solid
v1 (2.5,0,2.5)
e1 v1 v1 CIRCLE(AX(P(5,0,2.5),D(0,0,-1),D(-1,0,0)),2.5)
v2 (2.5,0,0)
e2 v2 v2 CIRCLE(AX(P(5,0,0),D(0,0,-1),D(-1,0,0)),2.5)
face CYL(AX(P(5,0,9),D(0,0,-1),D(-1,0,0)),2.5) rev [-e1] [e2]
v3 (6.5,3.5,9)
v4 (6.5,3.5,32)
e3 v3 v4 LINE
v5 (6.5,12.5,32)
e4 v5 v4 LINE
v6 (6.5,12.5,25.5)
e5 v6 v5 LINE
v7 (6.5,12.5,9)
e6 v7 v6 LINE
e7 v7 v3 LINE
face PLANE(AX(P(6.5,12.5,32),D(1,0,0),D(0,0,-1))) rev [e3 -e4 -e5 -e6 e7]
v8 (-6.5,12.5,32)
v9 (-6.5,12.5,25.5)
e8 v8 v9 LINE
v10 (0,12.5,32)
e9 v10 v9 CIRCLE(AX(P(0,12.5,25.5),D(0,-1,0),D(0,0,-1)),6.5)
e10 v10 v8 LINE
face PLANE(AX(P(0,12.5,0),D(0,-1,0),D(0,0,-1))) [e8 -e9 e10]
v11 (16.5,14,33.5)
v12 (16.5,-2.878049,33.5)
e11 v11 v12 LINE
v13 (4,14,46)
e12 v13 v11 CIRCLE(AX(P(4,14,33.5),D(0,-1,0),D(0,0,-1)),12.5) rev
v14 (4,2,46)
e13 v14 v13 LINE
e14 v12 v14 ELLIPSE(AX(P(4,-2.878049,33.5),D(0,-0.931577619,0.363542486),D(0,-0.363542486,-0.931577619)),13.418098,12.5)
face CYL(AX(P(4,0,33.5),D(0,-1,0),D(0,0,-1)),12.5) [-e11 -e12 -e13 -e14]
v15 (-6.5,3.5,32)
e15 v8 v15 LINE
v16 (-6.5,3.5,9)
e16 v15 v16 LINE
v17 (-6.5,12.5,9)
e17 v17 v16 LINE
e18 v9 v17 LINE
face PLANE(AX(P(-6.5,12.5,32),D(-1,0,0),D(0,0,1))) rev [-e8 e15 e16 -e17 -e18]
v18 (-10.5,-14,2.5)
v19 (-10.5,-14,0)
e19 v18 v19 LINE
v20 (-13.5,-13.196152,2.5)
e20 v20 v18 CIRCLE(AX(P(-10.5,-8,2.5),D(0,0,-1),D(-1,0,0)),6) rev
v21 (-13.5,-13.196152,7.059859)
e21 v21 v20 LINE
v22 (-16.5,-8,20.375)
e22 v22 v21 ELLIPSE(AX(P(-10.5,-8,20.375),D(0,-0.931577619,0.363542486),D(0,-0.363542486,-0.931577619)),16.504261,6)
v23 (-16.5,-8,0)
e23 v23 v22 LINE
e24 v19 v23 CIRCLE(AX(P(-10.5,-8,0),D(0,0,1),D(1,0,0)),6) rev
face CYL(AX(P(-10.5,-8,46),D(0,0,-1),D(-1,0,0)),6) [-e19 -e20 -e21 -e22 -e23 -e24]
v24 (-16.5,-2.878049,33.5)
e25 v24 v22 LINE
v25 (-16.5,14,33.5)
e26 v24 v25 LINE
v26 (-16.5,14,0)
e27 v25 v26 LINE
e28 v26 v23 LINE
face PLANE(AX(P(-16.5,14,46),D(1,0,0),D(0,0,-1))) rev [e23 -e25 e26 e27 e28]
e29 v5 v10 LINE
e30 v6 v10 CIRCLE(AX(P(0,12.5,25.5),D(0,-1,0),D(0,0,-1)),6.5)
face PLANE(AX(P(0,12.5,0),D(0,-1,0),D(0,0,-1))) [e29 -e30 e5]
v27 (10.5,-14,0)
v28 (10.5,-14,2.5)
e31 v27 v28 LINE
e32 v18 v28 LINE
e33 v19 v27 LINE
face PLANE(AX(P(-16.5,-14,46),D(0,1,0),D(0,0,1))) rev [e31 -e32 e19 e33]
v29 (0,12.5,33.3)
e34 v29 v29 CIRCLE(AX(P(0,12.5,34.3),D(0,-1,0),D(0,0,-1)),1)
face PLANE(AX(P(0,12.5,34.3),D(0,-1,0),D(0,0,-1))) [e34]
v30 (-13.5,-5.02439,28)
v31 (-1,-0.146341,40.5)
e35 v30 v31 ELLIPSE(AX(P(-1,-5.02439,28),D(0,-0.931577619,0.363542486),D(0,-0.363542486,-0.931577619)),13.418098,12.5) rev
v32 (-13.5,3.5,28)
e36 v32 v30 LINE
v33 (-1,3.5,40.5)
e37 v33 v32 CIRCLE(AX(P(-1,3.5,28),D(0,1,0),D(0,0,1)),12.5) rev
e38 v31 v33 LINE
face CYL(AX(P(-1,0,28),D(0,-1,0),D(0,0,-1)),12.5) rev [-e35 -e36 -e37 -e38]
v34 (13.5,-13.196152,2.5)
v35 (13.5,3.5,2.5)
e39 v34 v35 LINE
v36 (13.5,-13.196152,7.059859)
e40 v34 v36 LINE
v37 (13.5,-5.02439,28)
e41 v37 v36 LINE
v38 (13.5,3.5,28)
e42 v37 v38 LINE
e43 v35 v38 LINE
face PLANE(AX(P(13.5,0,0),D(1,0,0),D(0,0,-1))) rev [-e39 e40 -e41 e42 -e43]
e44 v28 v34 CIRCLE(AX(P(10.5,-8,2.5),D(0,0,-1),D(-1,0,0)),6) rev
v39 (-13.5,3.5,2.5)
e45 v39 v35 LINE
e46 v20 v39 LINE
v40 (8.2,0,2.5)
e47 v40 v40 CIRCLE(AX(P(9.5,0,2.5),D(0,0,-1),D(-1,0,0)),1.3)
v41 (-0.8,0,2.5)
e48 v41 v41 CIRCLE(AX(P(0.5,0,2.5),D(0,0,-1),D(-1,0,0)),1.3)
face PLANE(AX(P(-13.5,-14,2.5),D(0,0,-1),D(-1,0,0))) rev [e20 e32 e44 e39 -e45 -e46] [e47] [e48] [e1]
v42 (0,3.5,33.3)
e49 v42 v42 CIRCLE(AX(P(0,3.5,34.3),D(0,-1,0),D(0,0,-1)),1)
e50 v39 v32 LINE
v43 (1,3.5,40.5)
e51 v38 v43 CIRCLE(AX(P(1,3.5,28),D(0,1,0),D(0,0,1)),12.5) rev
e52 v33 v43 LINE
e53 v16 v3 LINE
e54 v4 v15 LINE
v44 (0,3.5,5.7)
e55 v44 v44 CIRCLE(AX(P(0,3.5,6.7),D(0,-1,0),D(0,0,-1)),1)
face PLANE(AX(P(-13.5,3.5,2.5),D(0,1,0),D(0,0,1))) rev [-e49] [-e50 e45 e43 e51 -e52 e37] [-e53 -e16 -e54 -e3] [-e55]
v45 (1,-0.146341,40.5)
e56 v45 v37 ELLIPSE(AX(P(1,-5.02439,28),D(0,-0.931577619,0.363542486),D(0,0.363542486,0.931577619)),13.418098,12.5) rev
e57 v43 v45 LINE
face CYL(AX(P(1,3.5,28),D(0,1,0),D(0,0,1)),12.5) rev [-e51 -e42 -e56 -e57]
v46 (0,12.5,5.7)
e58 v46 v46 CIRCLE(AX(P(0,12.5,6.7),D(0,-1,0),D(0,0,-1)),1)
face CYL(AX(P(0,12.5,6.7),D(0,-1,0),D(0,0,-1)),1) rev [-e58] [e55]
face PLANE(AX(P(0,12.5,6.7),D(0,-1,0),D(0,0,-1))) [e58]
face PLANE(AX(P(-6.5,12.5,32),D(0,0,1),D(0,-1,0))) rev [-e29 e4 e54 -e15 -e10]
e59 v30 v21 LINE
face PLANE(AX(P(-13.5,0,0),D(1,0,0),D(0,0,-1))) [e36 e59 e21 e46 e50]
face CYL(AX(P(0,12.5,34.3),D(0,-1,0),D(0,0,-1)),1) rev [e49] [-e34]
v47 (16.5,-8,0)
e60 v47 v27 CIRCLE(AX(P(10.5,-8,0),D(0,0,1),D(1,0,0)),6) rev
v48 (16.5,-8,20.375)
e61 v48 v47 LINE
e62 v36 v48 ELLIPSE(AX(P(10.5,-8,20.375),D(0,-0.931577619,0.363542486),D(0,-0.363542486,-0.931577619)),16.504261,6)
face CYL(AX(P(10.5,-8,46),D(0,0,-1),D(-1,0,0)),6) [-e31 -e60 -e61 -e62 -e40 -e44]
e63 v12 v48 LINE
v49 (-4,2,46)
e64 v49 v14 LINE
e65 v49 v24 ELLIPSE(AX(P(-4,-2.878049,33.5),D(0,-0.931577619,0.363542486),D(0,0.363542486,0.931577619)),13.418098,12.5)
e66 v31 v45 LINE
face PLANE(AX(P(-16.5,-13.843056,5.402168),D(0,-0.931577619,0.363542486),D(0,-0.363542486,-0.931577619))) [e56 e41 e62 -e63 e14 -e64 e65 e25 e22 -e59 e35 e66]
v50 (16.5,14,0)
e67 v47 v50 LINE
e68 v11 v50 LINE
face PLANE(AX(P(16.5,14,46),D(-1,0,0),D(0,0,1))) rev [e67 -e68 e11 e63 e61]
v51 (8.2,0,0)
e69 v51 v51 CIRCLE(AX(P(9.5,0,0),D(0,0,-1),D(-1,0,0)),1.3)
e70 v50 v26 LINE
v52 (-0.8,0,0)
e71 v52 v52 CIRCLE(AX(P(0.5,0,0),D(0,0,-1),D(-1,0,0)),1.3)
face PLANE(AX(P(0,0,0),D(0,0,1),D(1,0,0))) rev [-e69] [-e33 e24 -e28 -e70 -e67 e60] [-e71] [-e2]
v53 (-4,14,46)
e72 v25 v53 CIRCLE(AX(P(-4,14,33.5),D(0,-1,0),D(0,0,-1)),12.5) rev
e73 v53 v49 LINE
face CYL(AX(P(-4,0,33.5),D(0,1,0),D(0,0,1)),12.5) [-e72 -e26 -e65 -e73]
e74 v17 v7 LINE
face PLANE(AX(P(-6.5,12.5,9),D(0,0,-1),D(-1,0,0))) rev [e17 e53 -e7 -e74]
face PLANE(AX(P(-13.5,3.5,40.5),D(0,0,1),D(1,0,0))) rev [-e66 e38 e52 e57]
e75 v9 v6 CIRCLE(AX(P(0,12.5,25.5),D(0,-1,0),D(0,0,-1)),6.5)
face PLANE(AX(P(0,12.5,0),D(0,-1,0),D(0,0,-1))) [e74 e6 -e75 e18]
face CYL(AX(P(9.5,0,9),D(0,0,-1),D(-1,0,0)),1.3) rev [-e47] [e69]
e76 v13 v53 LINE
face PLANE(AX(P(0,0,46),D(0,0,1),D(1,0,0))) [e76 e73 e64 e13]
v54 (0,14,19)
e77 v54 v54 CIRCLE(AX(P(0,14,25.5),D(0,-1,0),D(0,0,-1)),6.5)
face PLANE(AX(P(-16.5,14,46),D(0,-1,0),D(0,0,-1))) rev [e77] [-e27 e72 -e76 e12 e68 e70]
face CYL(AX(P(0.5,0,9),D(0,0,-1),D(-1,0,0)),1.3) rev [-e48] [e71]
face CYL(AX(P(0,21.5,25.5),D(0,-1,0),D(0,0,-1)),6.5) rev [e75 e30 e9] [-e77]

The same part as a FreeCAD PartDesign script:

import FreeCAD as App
import Part
import Sketcher
from FreeCAD import Vector


def edges_at(feature, points):
    """Names of the edges that pass closest to the given points."""
    edges = feature.Shape.Edges
    near = lambda p: min(range(len(edges)), key=lambda i: edges[i].distToShape(Part.Vertex(*p))[0])
    return sorted({f"Edge{near(p) + 1}" for p in points})


def add_polygon(sketch, points):
    """Adds a closed chain of lines whose ends are joined by coincident constraints."""
    first, n = sketch.GeometryCount, len(points)
    for a, b in zip(points, points[1:] + points[:1]):
        sketch.addGeometry(Part.LineSegment(App.Vector(*a, 0), App.Vector(*b, 0)), False)
    for i in range(n):
        sketch.addConstraint(Sketcher.Constraint("Coincident", first + i, 2, first + (i + 1) % n, 1))

doc = App.newDocument("Part")
params = doc.addObject("Spreadsheet::Sheet", "Params")
for row, (alias, value) in enumerate([
    ("sketch1_width", "33 mm"),
    ("sketch1_height", "28 mm"),
    ("pad1_length", "46 mm"),
    ("sketch2_width", "16 mm"),
    ("sketch2_height", "41 mm"),
    ("sketch3_height", "38 mm"),
    ("sketch3_width", "17.5 mm"),
    ("sketch3_height2", "2.5 mm"),
    ("pocket2_length", "27 mm"),
    ("fillet_radius", "12.5 mm"),
    ("fillet2_radius", "12.5 mm"),
    ("fillet3_radius", "6 mm"),
    ("sketch4_width", "13 mm"),
    ("sketch4_height", "23 mm"),
    ("pocket3_length", "9 mm"),
    ("sketch5_diameter", "13 mm"),
    ("pocket4_length", "9 mm"),
    ("sketch6_diameter", "2 mm"),
    ("pocket5_length", "9 mm"),
    ("sketch7_diameter", "5 mm"),
    ("sketch7_diameter2", "2.6 mm"),
    ("pocket6_length", "9 mm"),
], start=1):
    params.set(f"A{row}", alias)
    params.set(f"B{row}", "=" + value)
    params.setAlias(f"B{row}", alias)

body = doc.addObject("PartDesign::Body", "Body")

# Sketch on XY plane
sketch1 = body.newObject("Sketcher::SketchObject", "Sketch")
sketch1.AttachmentSupport = (doc.getObject("XY_Plane"), [""])
sketch1.MapMode = "FlatFace"
add_polygon(sketch1, [(-16.5, 14), (-16.5, -14), (16.5, -14), (16.5, 14)])  # lines 0-3
sketch1.addConstraint([
    Sketcher.Constraint("Vertical", 0),
    Sketcher.Constraint("Horizontal", 1),
    Sketcher.Constraint("Vertical", 2),
    Sketcher.Constraint("Horizontal", 3),
    Sketcher.Constraint("Symmetric", 0, 2, 2, 2, -1, 1),
    Sketcher.Constraint("DistanceX", 1, 1, 1, 2, 33.0),
    Sketcher.Constraint("DistanceY", 0, 2, 0, 1, 28.0),
])
sketch1.setExpression("Constraints[9]", "Params.sketch1_width")
sketch1.setExpression("Constraints[10]", "Params.sketch1_height")
pad1 = body.newObject("PartDesign::Pad", "Pad")
pad1.Profile = sketch1
pad1.setExpression("Length", "Params.pad1_length")

# Sketch on YZ plane
sketch2 = body.newObject("Sketcher::SketchObject", "Sketch001")
sketch2.AttachmentSupport = (doc.getObject("YZ_Plane"), [""])
sketch2.MapMode = "FlatFace"
sketch2.AttachmentOffset = App.Placement(Vector(0, 0, 16.5), App.Rotation())
add_polygon(sketch2, [(-14, 5), (2, 46), (-14, 46)])  # lines 0-2
sketch2.addConstraint([
    Sketcher.Constraint("Horizontal", 1),
    Sketcher.Constraint("Vertical", 2),
    Sketcher.Constraint("DistanceX", 1, 2, 1, 1, 16.0),
    Sketcher.Constraint("DistanceY", 2, 2, 2, 1, 41.0),
    Sketcher.Constraint("DistanceX", -1, 1, 0, 2, 2.0),
    Sketcher.Constraint("DistanceY", -1, 1, 0, 2, 46.0),
])
sketch2.setExpression("Constraints[5]", "Params.sketch2_width")
sketch2.setExpression("Constraints[6]", "Params.sketch2_height")
pocket1 = body.newObject("PartDesign::Pocket", "Pocket")
pocket1.Profile = sketch2
pocket1.Type = "ThroughAll"

# Sketch on YZ plane
sketch3 = body.newObject("Sketcher::SketchObject", "Sketch002")
sketch3.AttachmentSupport = (doc.getObject("YZ_Plane"), [""])
sketch3.MapMode = "FlatFace"
sketch3.AttachmentOffset = App.Placement(Vector(0, 0, 13.5), App.Rotation())
add_polygon(sketch3, [(-14, 5), (-14, 2.5), (3.5, 2.5), (3.5, 40.5), (-0.146341, 40.5)])  # lines 0-4
sketch3.addConstraint([
    Sketcher.Constraint("Vertical", 0),
    Sketcher.Constraint("Horizontal", 1),
    Sketcher.Constraint("Vertical", 2),
    Sketcher.Constraint("Horizontal", 3),
    Sketcher.Constraint("DistanceY", 2, 1, 2, 2, 38.0),
    Sketcher.Constraint("DistanceX", 1, 1, 1, 2, 17.5),
    Sketcher.Constraint("DistanceY", 0, 2, 0, 1, 2.5),
    Sketcher.Constraint("DistanceX", 0, 2, -1, 1, 14.0),
    Sketcher.Constraint("DistanceY", -1, 1, 4, 2, 5.0),
    Sketcher.Constraint("Distance", 4, 38.107399),
])
sketch3.setExpression("Constraints[9]", "Params.sketch3_height")
sketch3.setExpression("Constraints[10]", "Params.sketch3_width")
sketch3.setExpression("Constraints[11]", "Params.sketch3_height2")
pocket2 = body.newObject("PartDesign::Pocket", "Pocket001")
pocket2.Profile = sketch3
pocket2.setExpression("Length", "Params.pocket2_length")
doc.recompute()

fillet = body.newObject("PartDesign::Fillet", "Fillet")
fillet.Base = (pocket2, edges_at(pocket2, [(-13.5, 1.677, 40.5), (13.5, 1.677, 40.5)]))
fillet.setExpression("Radius", "Params.fillet_radius")
doc.recompute()

fillet2 = body.newObject("PartDesign::Fillet", "Fillet001")
fillet2.Base = (fillet, edges_at(fillet, [(-16.5, 8, 46), (16.5, 8, 46)]))
fillet2.setExpression("Radius", "Params.fillet2_radius")
doc.recompute()

fillet3 = body.newObject("PartDesign::Fillet", "Fillet002")
fillet3.Base = (fillet2, edges_at(fillet2, [(-16.5, -14, 2.5), (16.5, -14, 2.5)]))
fillet3.setExpression("Radius", "Params.fillet3_radius")

# Sketch on XZ plane
sketch4 = body.newObject("Sketcher::SketchObject", "Sketch003")
sketch4.AttachmentSupport = (doc.getObject("XZ_Plane"), [""])
sketch4.MapMode = "FlatFace"
sketch4.AttachmentOffset = App.Placement(Vector(0, 0, -3.5), App.Rotation())
add_polygon(sketch4, [(-6.5, 32), (-6.5, 9), (6.5, 9), (6.5, 32)])  # lines 0-3
sketch4.addConstraint([
    Sketcher.Constraint("Vertical", 0),
    Sketcher.Constraint("Horizontal", 1),
    Sketcher.Constraint("Vertical", 2),
    Sketcher.Constraint("Horizontal", 3),
    Sketcher.Constraint("DistanceX", 1, 1, 1, 2, 13.0),
    Sketcher.Constraint("DistanceY", 0, 2, 0, 1, 23.0),
    Sketcher.Constraint("DistanceY", -1, 1, 0, 2, 9.0),
    Sketcher.Constraint("DistanceX", 0, 2, -1, 1, 6.5),
])
sketch4.setExpression("Constraints[8]", "Params.sketch4_width")
sketch4.setExpression("Constraints[9]", "Params.sketch4_height")
pocket3 = body.newObject("PartDesign::Pocket", "Pocket002")
pocket3.Profile = sketch4
pocket3.setExpression("Length", "Params.pocket3_length")

# Sketch on XZ plane
sketch5 = body.newObject("Sketcher::SketchObject", "Sketch004")
sketch5.AttachmentSupport = (doc.getObject("XZ_Plane"), [""])
sketch5.MapMode = "FlatFace"
sketch5.AttachmentOffset = App.Placement(Vector(0, 0, -12.5), App.Rotation())
sketch5.addGeometry(Part.Circle(Vector(0, 25.5, 0), Vector(0, 0, 1), 6.5), False)
sketch5.addConstraint([
    Sketcher.Constraint("PointOnObject", 0, 3, -2),
    Sketcher.Constraint("Diameter", 0, 13.0),
    Sketcher.Constraint("DistanceY", -1, 1, 0, 3, 25.5),
])
sketch5.setExpression("Constraints[1]", "Params.sketch5_diameter")
pocket4 = body.newObject("PartDesign::Pocket", "Pocket003")
pocket4.Profile = sketch5
pocket4.setExpression("Length", "Params.pocket4_length")

# Sketch on XZ plane
sketch6 = body.newObject("Sketcher::SketchObject", "Sketch005")
sketch6.AttachmentSupport = (doc.getObject("XZ_Plane"), [""])
sketch6.MapMode = "FlatFace"
sketch6.AttachmentOffset = App.Placement(Vector(0, 0, -3.5), App.Rotation())
sketch6.addGeometry([
    Part.Circle(Vector(0, 34.3, 0), Vector(0, 0, 1), 1),
    Part.Circle(Vector(0, 6.7, 0), Vector(0, 0, 1), 1),
], False)
sketch6.addConstraint([
    Sketcher.Constraint("Equal", 0, 1),
    Sketcher.Constraint("PointOnObject", 0, 3, -2),
    Sketcher.Constraint("PointOnObject", 1, 3, -2),
    Sketcher.Constraint("Diameter", 0, 2.0),
    Sketcher.Constraint("DistanceY", -1, 1, 0, 3, 34.3),
    Sketcher.Constraint("DistanceY", -1, 1, 1, 3, 6.7),
])
sketch6.setExpression("Constraints[3]", "Params.sketch6_diameter")
pocket5 = body.newObject("PartDesign::Pocket", "Pocket004")
pocket5.Profile = sketch6
pocket5.setExpression("Length", "Params.pocket5_length")

# Sketch on XY plane
sketch7 = body.newObject("Sketcher::SketchObject", "Sketch006")
sketch7.AttachmentSupport = (doc.getObject("XY_Plane"), [""])
sketch7.MapMode = "FlatFace"
sketch7.addGeometry([
    Part.Circle(Vector(5, 0, 0), Vector(0, 0, 1), 2.5),
    Part.Circle(Vector(0.5, 0, 0), Vector(0, 0, 1), 1.3),
    Part.Circle(Vector(9.5, 0, 0), Vector(0, 0, 1), 1.3),
], False)
sketch7.addConstraint([
    Sketcher.Constraint("Equal", 1, 2),
    Sketcher.Constraint("PointOnObject", 0, 3, -1),
    Sketcher.Constraint("PointOnObject", 1, 3, -1),
    Sketcher.Constraint("PointOnObject", 2, 3, -1),
    Sketcher.Constraint("Diameter", 0, 5.0),
    Sketcher.Constraint("Diameter", 1, 2.6),
    Sketcher.Constraint("DistanceX", -1, 1, 0, 3, 5.0),
    Sketcher.Constraint("DistanceX", 1, 3, 2, 3, 9.0),
    Sketcher.Constraint("DistanceX", -1, 1, 1, 3, 0.5),
])
sketch7.setExpression("Constraints[4]", "Params.sketch7_diameter")
sketch7.setExpression("Constraints[5]", "Params.sketch7_diameter2")
pocket6 = body.newObject("PartDesign::Pocket", "Pocket005")
pocket6.Profile = sketch7
pocket6.setExpression("Length", "Params.pocket6_length")
pocket6.Reversed = True

doc.recompute()
